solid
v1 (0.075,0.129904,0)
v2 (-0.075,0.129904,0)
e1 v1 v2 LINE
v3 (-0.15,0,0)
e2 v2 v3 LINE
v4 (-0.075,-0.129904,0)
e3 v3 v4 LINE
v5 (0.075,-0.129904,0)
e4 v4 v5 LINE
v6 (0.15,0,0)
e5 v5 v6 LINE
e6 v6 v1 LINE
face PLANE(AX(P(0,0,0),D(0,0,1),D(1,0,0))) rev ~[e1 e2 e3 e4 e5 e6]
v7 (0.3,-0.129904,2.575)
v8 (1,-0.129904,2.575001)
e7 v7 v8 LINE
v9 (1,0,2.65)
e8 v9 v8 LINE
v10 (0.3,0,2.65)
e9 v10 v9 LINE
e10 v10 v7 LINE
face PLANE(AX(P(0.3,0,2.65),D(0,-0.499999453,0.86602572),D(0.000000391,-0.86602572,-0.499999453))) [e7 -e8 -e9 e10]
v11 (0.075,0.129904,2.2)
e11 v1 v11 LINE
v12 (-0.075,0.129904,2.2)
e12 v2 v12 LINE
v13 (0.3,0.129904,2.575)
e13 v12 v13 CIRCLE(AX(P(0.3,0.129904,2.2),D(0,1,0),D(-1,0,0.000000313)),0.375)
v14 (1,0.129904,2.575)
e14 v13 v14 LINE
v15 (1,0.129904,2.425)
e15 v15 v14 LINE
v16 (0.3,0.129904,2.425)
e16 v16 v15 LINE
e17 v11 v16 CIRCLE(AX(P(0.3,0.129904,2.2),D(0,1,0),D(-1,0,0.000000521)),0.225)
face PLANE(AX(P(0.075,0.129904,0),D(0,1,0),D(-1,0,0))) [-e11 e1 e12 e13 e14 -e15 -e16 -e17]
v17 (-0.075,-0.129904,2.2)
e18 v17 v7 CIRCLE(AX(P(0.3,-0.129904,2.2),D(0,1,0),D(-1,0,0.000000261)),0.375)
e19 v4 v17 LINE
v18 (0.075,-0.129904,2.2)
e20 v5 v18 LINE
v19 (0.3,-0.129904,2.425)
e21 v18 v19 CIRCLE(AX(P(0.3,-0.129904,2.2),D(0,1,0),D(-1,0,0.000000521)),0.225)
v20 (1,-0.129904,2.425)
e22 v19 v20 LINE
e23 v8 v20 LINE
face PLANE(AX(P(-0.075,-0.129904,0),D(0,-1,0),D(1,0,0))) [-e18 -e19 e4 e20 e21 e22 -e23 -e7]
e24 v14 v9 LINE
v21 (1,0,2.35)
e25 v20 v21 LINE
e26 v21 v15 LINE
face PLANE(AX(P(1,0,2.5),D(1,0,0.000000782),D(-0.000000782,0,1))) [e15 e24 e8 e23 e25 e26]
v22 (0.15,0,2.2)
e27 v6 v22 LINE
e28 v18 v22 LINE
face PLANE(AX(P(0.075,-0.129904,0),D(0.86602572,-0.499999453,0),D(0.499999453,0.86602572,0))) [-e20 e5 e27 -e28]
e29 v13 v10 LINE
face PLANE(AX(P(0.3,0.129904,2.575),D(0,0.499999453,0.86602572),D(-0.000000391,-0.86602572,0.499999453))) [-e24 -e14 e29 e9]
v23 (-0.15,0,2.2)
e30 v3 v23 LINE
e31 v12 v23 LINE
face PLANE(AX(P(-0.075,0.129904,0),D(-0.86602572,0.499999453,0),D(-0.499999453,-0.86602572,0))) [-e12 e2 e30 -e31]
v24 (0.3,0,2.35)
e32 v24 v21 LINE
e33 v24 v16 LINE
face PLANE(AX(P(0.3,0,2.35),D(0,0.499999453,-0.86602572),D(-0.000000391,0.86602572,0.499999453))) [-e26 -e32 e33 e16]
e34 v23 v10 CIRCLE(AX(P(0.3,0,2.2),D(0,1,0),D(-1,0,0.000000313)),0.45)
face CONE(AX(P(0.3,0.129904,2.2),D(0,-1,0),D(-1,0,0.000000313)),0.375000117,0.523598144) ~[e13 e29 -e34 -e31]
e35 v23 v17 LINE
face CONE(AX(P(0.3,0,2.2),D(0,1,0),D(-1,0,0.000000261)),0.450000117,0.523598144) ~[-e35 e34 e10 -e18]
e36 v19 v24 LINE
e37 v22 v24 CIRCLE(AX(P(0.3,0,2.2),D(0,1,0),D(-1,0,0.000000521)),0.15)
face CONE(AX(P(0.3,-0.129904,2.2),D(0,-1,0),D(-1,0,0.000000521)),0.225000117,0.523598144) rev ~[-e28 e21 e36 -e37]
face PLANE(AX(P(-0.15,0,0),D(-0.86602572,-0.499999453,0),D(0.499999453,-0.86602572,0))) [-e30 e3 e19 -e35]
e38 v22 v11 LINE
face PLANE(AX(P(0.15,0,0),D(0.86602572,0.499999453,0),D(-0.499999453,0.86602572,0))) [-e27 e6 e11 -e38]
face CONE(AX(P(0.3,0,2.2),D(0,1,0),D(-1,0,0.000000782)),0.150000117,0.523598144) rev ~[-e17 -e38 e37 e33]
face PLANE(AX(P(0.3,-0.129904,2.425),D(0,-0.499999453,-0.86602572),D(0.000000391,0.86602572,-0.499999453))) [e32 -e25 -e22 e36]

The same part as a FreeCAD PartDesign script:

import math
import FreeCAD as App
import Part
import Sketcher
from FreeCAD import Vector

doc = App.newDocument("Part")
body = doc.addObject("PartDesign::Body", "Body")

# Sketch on XY plane
sketch1 = body.newObject("Sketcher::SketchObject", "Sketch")
sketch1.AttachmentSupport = (doc.getObject("XY_Plane"), [""])
sketch1.MapMode = "FlatFace"
sketch1.addGeometry([
    Part.LineSegment(Vector(0.07, 0.13, 0), Vector(-0.07, 0.13, 0)),  # 0
    Part.LineSegment(Vector(-0.07, 0.13, 0), Vector(-0.15, 0, 0)),  # 1
    Part.LineSegment(Vector(-0.15, 0, 0), Vector(-0.07, -0.13, 0)),  # 2
    Part.LineSegment(Vector(-0.07, -0.13, 0), Vector(0.07, -0.13, 0)),  # 3
    Part.LineSegment(Vector(0.07, -0.13, 0), Vector(0.15, 0, 0)),  # 4
    Part.LineSegment(Vector(0.15, 0, 0), Vector(0.07, 0.13, 0)),  # 5
], False)
sketch1.addConstraint([
    Sketcher.Constraint("Coincident", 0, 2, 1, 1),
    Sketcher.Constraint("Coincident", 1, 2, 2, 1),
    Sketcher.Constraint("Coincident", 2, 2, 3, 1),
    Sketcher.Constraint("Coincident", 3, 2, 4, 1),
    Sketcher.Constraint("Coincident", 4, 2, 5, 1),
    Sketcher.Constraint("Coincident", 5, 2, 0, 1),
    Sketcher.Constraint("Horizontal", 0),
    Sketcher.Constraint("Horizontal", 3),
    Sketcher.Constraint("Symmetric", 0, 2, 3, 2, -1, 1),
    Sketcher.Constraint("Symmetric", 1, 2, 4, 2, -1, 1),
    Sketcher.Constraint("PointOnObject", 1, 2, -1),
    Sketcher.Constraint("Parallel", 2, 5),
    Sketcher.Constraint("Vertical", 0, 2, 2, 2),
    Sketcher.Constraint("DistanceX", 0, 2, 0, 1, 0.15),
    Sketcher.Constraint("DistanceX", 1, 2, 4, 2, 0.3),
    Sketcher.Constraint("Distance", 1, 0.15),
])

# Sketch on XZ plane
sketch2 = body.newObject("Sketcher::SketchObject", "Sketch001")
sketch2.AttachmentSupport = (doc.getObject("XZ_Plane"), [""])
sketch2.MapMode = "FlatFace"
sketch2.addGeometry([
    Part.LineSegment(Vector(0, 0, 0), Vector(0, 2.2, 0)),
    Part.ArcOfCircle(Part.Circle(Vector(0.3, 2.2, 0), Vector(0, 0, 1), 0.3), math.radians(90), math.radians(180)),
    Part.LineSegment(Vector(0.3, 2.5, 0), Vector(1, 2.5, 0)),
], False)
sketch2.addConstraint([
    Sketcher.Constraint("Tangent", 0, 2, 1, 2),
    Sketcher.Constraint("Tangent", 1, 1, 2, 1),
    Sketcher.Constraint("Vertical", 0),
    Sketcher.Constraint("Horizontal", 2),
    Sketcher.Constraint("Coincident", 0, 1, -1, 1),
    Sketcher.Constraint("Radius", 1, 0.3),
    Sketcher.Constraint("DistanceX", 2, 1, 2, 2, 0.7),
    Sketcher.Constraint("DistanceY", 0, 1, 0, 2, 2.2),
])
doc.recompute()

additivepipe = body.newObject("PartDesign::AdditivePipe", "AdditivePipe")
additivepipe.Profile = sketch1
additivepipe.Spine = (sketch2, ["Edge1", "Edge2", "Edge3"])

doc.recompute()
